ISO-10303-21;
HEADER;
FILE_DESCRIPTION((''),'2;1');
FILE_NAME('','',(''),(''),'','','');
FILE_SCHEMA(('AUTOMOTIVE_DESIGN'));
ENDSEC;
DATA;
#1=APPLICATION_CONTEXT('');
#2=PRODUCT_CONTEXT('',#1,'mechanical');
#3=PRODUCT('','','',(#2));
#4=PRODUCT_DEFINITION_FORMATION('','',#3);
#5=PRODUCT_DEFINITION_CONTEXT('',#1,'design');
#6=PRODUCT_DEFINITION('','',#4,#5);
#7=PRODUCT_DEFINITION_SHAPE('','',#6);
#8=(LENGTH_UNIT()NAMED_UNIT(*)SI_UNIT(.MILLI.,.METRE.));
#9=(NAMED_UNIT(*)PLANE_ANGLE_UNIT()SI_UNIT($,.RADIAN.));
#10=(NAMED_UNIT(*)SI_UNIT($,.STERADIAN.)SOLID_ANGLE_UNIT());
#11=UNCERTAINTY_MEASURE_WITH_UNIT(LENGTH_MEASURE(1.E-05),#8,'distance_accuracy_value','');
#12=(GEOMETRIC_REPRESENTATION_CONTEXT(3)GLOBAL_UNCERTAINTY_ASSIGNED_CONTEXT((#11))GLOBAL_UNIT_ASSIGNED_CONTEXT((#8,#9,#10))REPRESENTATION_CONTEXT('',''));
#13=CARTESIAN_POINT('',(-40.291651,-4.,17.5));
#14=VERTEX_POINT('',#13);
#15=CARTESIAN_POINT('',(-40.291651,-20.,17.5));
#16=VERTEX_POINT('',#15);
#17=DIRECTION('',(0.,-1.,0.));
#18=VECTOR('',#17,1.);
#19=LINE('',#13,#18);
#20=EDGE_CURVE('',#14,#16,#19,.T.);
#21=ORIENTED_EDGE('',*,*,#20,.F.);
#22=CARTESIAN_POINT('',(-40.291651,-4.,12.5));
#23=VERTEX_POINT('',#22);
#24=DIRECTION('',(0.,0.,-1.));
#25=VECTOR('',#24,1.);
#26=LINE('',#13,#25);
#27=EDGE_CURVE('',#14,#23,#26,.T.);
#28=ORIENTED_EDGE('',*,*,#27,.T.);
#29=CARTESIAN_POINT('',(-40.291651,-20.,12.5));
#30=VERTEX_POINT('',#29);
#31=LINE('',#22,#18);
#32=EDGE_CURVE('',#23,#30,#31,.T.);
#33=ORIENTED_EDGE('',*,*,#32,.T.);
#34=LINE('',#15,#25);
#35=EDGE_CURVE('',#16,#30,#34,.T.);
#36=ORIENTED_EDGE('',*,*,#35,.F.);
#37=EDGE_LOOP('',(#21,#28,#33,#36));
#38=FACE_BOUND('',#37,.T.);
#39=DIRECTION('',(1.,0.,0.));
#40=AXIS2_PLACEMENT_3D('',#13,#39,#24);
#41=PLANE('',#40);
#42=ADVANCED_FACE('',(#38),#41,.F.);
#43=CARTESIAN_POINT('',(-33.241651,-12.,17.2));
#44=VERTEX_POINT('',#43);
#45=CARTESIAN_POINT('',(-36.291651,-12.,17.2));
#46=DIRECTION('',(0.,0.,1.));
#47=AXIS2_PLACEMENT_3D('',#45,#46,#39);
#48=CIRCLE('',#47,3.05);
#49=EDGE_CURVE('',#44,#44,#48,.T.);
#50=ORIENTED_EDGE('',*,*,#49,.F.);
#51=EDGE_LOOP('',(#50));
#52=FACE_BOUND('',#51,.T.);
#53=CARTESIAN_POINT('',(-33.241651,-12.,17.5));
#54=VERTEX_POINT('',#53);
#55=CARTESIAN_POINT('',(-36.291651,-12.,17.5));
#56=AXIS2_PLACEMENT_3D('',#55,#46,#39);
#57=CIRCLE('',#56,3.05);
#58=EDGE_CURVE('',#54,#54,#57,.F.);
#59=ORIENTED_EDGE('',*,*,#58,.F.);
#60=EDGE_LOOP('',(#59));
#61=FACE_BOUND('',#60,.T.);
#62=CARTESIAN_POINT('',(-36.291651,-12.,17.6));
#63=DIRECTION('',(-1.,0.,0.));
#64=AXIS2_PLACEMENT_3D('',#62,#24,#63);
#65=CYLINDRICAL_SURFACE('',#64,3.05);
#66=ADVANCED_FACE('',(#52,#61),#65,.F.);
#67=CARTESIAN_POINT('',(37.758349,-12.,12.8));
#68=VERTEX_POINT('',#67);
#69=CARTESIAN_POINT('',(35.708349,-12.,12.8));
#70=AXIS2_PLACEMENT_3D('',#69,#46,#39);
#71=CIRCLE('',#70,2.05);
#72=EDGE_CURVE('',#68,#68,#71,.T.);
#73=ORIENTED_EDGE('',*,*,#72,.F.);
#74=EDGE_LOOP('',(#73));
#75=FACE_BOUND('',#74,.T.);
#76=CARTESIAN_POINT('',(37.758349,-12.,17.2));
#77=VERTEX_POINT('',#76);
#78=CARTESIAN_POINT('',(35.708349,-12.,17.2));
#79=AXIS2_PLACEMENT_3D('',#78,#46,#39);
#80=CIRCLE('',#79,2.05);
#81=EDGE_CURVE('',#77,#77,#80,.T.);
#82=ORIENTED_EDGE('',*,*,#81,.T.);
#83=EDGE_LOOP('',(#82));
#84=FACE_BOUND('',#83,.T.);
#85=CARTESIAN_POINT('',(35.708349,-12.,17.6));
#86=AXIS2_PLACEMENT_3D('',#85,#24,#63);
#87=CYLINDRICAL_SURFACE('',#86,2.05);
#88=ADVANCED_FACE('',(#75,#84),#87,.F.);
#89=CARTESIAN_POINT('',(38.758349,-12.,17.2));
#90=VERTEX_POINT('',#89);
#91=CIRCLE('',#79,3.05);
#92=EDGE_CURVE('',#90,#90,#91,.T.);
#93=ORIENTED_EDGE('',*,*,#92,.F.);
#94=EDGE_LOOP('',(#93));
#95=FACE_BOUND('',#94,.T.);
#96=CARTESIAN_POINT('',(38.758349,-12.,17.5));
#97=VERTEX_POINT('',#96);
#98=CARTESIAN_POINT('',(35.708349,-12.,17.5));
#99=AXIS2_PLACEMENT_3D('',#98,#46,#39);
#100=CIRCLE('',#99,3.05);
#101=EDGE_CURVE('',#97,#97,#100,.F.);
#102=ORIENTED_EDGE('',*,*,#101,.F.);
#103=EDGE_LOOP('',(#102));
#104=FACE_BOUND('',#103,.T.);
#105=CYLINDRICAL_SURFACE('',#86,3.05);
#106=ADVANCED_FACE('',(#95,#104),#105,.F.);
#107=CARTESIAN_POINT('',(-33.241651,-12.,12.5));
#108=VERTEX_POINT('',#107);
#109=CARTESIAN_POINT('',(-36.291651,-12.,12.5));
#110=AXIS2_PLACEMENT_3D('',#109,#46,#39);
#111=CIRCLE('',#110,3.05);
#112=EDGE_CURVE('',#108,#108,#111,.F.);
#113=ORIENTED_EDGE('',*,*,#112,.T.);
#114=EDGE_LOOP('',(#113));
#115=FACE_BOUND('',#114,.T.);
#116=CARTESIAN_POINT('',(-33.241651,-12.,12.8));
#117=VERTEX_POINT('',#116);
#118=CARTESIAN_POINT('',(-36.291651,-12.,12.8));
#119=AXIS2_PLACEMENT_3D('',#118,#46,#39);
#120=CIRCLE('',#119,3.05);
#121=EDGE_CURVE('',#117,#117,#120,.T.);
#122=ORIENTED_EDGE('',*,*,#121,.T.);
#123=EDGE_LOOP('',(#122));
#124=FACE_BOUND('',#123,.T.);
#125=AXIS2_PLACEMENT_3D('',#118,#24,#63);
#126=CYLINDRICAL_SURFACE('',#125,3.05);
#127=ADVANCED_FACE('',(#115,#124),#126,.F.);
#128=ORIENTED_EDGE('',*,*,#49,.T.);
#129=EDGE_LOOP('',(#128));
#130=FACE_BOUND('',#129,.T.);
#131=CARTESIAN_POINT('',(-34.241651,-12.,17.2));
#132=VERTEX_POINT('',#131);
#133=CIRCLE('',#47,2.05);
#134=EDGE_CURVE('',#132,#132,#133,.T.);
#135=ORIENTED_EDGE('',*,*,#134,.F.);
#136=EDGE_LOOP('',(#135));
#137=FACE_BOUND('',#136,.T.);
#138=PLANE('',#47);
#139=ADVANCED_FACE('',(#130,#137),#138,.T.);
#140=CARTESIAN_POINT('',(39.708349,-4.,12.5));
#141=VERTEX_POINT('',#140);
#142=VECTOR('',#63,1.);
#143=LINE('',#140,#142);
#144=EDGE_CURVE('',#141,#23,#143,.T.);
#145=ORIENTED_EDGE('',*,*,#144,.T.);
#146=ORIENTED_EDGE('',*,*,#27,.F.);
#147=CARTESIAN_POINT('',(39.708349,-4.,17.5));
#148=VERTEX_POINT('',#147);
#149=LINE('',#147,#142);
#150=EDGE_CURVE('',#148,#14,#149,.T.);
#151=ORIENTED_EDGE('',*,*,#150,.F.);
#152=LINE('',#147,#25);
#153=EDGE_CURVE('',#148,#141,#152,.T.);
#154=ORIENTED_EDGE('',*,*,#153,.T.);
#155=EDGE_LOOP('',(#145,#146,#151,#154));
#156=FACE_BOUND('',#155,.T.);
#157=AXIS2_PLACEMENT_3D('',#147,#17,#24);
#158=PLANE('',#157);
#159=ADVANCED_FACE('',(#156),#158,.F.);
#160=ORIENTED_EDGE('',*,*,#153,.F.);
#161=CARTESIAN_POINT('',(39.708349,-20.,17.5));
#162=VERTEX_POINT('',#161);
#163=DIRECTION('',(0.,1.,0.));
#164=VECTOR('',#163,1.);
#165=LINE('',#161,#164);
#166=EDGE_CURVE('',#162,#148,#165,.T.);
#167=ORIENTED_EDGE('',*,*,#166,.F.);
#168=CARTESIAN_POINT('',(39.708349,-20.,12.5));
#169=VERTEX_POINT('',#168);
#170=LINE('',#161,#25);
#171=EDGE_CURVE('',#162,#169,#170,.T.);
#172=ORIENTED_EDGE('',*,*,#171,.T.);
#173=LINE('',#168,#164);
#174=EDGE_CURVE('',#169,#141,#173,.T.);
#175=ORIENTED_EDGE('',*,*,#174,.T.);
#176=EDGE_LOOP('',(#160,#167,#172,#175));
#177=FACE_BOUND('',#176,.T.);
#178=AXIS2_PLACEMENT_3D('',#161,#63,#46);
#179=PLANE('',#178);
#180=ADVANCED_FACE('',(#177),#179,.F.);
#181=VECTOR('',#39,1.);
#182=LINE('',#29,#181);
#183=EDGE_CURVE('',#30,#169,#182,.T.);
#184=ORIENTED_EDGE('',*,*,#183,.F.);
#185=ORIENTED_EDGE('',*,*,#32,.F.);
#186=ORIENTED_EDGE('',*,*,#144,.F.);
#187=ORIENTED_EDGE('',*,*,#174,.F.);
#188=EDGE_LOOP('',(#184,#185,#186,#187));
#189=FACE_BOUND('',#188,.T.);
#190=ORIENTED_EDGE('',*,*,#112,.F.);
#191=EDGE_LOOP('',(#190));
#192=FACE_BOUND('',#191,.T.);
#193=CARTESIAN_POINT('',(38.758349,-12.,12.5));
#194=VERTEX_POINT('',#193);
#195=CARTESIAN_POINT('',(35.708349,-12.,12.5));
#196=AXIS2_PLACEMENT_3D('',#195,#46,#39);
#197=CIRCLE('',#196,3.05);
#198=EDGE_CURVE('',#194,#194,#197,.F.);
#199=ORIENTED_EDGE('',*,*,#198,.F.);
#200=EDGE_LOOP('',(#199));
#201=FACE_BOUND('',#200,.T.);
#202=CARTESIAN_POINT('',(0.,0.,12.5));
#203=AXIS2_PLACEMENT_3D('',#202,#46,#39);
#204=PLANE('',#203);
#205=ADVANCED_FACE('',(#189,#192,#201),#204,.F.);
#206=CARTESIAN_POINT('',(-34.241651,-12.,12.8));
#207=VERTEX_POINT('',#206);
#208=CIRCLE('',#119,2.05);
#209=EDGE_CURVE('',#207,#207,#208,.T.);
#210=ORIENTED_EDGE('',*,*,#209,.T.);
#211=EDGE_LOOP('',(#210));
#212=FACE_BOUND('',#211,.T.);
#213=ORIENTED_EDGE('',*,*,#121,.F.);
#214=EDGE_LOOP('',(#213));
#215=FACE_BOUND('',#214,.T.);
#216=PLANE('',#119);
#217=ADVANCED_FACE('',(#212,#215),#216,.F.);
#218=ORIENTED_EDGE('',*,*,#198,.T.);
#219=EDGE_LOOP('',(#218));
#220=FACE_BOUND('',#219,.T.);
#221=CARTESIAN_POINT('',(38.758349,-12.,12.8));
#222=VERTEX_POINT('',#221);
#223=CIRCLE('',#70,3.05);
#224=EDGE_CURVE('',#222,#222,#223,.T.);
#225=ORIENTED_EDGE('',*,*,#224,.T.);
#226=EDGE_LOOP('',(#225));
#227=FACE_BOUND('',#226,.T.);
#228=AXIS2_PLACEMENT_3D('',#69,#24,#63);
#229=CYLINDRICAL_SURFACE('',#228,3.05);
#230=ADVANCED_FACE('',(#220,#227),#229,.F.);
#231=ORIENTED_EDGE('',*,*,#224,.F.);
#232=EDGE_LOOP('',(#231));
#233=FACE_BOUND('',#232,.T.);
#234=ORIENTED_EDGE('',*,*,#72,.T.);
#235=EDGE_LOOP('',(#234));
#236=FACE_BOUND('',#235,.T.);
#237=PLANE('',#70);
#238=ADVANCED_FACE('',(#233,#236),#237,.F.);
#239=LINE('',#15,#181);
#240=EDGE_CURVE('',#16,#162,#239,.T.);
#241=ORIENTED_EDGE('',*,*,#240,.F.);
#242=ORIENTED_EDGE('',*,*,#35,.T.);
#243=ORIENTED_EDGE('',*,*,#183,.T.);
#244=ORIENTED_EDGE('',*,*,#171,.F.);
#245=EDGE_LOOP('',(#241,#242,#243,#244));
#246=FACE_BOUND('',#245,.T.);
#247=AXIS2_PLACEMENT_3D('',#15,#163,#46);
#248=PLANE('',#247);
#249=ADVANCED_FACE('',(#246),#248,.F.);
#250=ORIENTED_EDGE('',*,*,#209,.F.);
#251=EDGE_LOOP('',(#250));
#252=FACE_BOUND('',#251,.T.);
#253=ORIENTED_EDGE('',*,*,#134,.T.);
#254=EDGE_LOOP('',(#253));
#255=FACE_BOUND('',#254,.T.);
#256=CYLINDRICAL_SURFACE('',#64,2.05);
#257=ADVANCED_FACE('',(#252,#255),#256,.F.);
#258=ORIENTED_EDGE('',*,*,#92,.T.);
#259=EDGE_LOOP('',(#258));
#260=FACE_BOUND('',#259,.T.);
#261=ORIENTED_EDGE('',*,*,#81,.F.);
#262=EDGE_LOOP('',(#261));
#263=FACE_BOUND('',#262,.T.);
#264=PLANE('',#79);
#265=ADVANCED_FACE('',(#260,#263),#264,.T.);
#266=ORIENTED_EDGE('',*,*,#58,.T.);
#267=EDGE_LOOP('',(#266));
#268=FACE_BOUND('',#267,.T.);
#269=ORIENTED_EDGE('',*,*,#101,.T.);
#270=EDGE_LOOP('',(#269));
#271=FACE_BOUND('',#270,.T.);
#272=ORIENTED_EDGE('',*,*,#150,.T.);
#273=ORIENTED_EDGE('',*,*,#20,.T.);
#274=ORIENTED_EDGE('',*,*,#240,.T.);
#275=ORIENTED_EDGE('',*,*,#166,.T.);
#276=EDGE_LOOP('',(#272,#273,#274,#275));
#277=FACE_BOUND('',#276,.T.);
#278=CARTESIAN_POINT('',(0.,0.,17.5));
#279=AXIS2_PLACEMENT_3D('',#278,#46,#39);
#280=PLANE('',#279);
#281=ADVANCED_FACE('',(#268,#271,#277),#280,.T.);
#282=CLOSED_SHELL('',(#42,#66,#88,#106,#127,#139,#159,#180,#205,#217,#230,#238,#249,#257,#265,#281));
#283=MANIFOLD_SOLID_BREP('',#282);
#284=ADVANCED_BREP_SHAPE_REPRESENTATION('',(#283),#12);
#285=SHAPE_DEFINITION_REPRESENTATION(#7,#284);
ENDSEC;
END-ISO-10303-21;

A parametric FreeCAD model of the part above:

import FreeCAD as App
import Part
import Sketcher
from FreeCAD import Vector
Q = App.Units.Quantity


def add_polygon(sketch, points):
    """Adds a closed chain of lines whose ends are joined by coincident constraints."""
    first, n = sketch.GeometryCount, len(points)
    for a, b in zip(points, points[1:] + points[:1]):
        sketch.addGeometry(Part.LineSegment(App.Vector(*a, 0), App.Vector(*b, 0)), False)
    for i in range(n):
        sketch.addConstraint(Sketcher.Constraint("Coincident", first + i, 2, first + (i + 1) % n, 1))

doc = App.newDocument("Part")
body = doc.addObject("PartDesign::Body", "Body")

# Sketch on XY plane
sketch1 = body.newObject("Sketcher::SketchObject", "Sketch")
sketch1.AttachmentSupport = (doc.getObject("XY_Plane"), [""])
sketch1.MapMode = "FlatFace"
sketch1.AttachmentOffset = App.Placement(Vector(0, 0, 12.5), App.Rotation())
add_polygon(sketch1, [(-40, -4), (-40, -20), (40, -20), (40, -4)])  # lines 0-3
sketch1.addConstraint([
    Sketcher.Constraint("Vertical", 0),
    Sketcher.Constraint("Horizontal", 1),
    Sketcher.Constraint("Vertical", 2),
    Sketcher.Constraint("Horizontal", 3),
    Sketcher.Constraint("DistanceX", 1, 1, 1, 2, Q("80 mm")),
    Sketcher.Constraint("DistanceY", 0, 2, 0, 1, Q("16 mm")),
    Sketcher.Constraint("DistanceY", 0, 2, -1, 1, Q("20 mm")),
    Sketcher.Constraint("DistanceX", 0, 2, -1, 1, Q("40.291651 mm")),
])
pad1 = body.newObject("PartDesign::Pad", "Pad")
pad1.Profile = sketch1
pad1.Length = 5

# Sketch on XY plane
sketch2 = body.newObject("Sketcher::SketchObject", "Sketch001")
sketch2.AttachmentSupport = (doc.getObject("XY_Plane"), [""])
sketch2.MapMode = "FlatFace"
sketch2.AttachmentOffset = App.Placement(Vector(0, 0, 12.4), App.Rotation())
sketch2.addGeometry(Part.Circle(Vector(-36.3, -12, 0), Vector(0, 0, 1), 2), False)
sketch2.addConstraint([
    Sketcher.Constraint("Diameter", 0, Q("4.1 mm")),
    Sketcher.Constraint("DistanceY", 0, 3, -1, 1, Q("12 mm")),
    Sketcher.Constraint("DistanceX", 0, 3, -1, 1, Q("36.291651 mm")),
])
pocket1 = body.newObject("PartDesign::Pocket", "Pocket")
pocket1.Profile = sketch2
pocket1.Length = 5.2
pocket1.Reversed = True

# Sketch on XY plane
sketch3 = body.newObject("Sketcher::SketchObject", "Sketch002")
sketch3.AttachmentSupport = (doc.getObject("XY_Plane"), [""])
sketch3.MapMode = "FlatFace"
sketch3.AttachmentOffset = App.Placement(Vector(0, 0, 12.4), App.Rotation())
sketch3.addGeometry(Part.Circle(Vector(-36.3, -12, 0), Vector(0, 0, 1), 3), False)
sketch3.addConstraint([
    Sketcher.Constraint("Diameter", 0, Q("6.1 mm")),
    Sketcher.Constraint("DistanceY", 0, 3, -1, 1, Q("12 mm")),
    Sketcher.Constraint("DistanceX", 0, 3, -1, 1, Q("36.291651 mm")),
])
pocket2 = body.newObject("PartDesign::Pocket", "Pocket001")
pocket2.Profile = sketch3
pocket2.Length = 0.4
pocket2.Reversed = True

# Sketch on XY plane
sketch4 = body.newObject("Sketcher::SketchObject", "Sketch003")
sketch4.AttachmentSupport = (doc.getObject("XY_Plane"), [""])
sketch4.MapMode = "FlatFace"
sketch4.AttachmentOffset = App.Placement(Vector(0, 0, 17.2), App.Rotation())
sketch4.addGeometry(Part.Circle(Vector(-36.3, -12, 0), Vector(0, 0, 1), 3), False)
sketch4.addConstraint([
    Sketcher.Constraint("Diameter", 0, Q("6.1 mm")),
    Sketcher.Constraint("DistanceY", 0, 3, -1, 1, Q("12 mm")),
    Sketcher.Constraint("DistanceX", 0, 3, -1, 1, Q("36.291651 mm")),
])
pocket3 = body.newObject("PartDesign::Pocket", "Pocket002")
pocket3.Profile = sketch4
pocket3.Length = 0.4
pocket3.Reversed = True

# Sketch on XY plane
sketch5 = body.newObject("Sketcher::SketchObject", "Sketch004")
sketch5.AttachmentSupport = (doc.getObject("XY_Plane"), [""])
sketch5.MapMode = "FlatFace"
sketch5.AttachmentOffset = App.Placement(Vector(0, 0, 12.4), App.Rotation())
sketch5.addGeometry(Part.Circle(Vector(35.7, -12, 0), Vector(0, 0, 1), 2), False)
sketch5.addConstraint([
    Sketcher.Constraint("Diameter", 0, Q("4.1 mm")),
    Sketcher.Constraint("DistanceY", 0, 3, -1, 1, Q("12 mm")),
    Sketcher.Constraint("DistanceX", -1, 1, 0, 3, Q("35.708349 mm")),
])
pocket4 = body.newObject("PartDesign::Pocket", "Pocket003")
pocket4.Profile = sketch5
pocket4.Length = 5.2
pocket4.Reversed = True

# Sketch on XY plane
sketch6 = body.newObject("Sketcher::SketchObject", "Sketch005")
sketch6.AttachmentSupport = (doc.getObject("XY_Plane"), [""])
sketch6.MapMode = "FlatFace"
sketch6.AttachmentOffset = App.Placement(Vector(0, 0, 12.4), App.Rotation())
sketch6.addGeometry(Part.Circle(Vector(35.7, -12, 0), Vector(0, 0, 1), 3), False)
sketch6.addConstraint([
    Sketcher.Constraint("Diameter", 0, Q("6.1 mm")),
    Sketcher.Constraint("DistanceY", 0, 3, -1, 1, Q("12 mm")),
    Sketcher.Constraint("DistanceX", -1, 1, 0, 3, Q("35.708349 mm")),
])
pocket5 = body.newObject("PartDesign::Pocket", "Pocket004")
pocket5.Profile = sketch6
pocket5.Length = 0.4
pocket5.Reversed = True

# Sketch on XY plane
sketch7 = body.newObject("Sketcher::SketchObject", "Sketch006")
sketch7.AttachmentSupport = (doc.getObject("XY_Plane"), [""])
sketch7.MapMode = "FlatFace"
sketch7.AttachmentOffset = App.Placement(Vector(0, 0, 17.2), App.Rotation())
sketch7.addGeometry(Part.Circle(Vector(35.7, -12, 0), Vector(0, 0, 1), 3), False)
sketch7.addConstraint([
    Sketcher.Constraint("Diameter", 0, Q("6.1 mm")),
    Sketcher.Constraint("DistanceY", 0, 3, -1, 1, Q("12 mm")),
    Sketcher.Constraint("DistanceX", -1, 1, 0, 3, Q("35.708349 mm")),
])
pocket6 = body.newObject("PartDesign::Pocket", "Pocket005")
pocket6.Profile = sketch7
pocket6.Length = 0.4
pocket6.Reversed = True

doc.recompute()
